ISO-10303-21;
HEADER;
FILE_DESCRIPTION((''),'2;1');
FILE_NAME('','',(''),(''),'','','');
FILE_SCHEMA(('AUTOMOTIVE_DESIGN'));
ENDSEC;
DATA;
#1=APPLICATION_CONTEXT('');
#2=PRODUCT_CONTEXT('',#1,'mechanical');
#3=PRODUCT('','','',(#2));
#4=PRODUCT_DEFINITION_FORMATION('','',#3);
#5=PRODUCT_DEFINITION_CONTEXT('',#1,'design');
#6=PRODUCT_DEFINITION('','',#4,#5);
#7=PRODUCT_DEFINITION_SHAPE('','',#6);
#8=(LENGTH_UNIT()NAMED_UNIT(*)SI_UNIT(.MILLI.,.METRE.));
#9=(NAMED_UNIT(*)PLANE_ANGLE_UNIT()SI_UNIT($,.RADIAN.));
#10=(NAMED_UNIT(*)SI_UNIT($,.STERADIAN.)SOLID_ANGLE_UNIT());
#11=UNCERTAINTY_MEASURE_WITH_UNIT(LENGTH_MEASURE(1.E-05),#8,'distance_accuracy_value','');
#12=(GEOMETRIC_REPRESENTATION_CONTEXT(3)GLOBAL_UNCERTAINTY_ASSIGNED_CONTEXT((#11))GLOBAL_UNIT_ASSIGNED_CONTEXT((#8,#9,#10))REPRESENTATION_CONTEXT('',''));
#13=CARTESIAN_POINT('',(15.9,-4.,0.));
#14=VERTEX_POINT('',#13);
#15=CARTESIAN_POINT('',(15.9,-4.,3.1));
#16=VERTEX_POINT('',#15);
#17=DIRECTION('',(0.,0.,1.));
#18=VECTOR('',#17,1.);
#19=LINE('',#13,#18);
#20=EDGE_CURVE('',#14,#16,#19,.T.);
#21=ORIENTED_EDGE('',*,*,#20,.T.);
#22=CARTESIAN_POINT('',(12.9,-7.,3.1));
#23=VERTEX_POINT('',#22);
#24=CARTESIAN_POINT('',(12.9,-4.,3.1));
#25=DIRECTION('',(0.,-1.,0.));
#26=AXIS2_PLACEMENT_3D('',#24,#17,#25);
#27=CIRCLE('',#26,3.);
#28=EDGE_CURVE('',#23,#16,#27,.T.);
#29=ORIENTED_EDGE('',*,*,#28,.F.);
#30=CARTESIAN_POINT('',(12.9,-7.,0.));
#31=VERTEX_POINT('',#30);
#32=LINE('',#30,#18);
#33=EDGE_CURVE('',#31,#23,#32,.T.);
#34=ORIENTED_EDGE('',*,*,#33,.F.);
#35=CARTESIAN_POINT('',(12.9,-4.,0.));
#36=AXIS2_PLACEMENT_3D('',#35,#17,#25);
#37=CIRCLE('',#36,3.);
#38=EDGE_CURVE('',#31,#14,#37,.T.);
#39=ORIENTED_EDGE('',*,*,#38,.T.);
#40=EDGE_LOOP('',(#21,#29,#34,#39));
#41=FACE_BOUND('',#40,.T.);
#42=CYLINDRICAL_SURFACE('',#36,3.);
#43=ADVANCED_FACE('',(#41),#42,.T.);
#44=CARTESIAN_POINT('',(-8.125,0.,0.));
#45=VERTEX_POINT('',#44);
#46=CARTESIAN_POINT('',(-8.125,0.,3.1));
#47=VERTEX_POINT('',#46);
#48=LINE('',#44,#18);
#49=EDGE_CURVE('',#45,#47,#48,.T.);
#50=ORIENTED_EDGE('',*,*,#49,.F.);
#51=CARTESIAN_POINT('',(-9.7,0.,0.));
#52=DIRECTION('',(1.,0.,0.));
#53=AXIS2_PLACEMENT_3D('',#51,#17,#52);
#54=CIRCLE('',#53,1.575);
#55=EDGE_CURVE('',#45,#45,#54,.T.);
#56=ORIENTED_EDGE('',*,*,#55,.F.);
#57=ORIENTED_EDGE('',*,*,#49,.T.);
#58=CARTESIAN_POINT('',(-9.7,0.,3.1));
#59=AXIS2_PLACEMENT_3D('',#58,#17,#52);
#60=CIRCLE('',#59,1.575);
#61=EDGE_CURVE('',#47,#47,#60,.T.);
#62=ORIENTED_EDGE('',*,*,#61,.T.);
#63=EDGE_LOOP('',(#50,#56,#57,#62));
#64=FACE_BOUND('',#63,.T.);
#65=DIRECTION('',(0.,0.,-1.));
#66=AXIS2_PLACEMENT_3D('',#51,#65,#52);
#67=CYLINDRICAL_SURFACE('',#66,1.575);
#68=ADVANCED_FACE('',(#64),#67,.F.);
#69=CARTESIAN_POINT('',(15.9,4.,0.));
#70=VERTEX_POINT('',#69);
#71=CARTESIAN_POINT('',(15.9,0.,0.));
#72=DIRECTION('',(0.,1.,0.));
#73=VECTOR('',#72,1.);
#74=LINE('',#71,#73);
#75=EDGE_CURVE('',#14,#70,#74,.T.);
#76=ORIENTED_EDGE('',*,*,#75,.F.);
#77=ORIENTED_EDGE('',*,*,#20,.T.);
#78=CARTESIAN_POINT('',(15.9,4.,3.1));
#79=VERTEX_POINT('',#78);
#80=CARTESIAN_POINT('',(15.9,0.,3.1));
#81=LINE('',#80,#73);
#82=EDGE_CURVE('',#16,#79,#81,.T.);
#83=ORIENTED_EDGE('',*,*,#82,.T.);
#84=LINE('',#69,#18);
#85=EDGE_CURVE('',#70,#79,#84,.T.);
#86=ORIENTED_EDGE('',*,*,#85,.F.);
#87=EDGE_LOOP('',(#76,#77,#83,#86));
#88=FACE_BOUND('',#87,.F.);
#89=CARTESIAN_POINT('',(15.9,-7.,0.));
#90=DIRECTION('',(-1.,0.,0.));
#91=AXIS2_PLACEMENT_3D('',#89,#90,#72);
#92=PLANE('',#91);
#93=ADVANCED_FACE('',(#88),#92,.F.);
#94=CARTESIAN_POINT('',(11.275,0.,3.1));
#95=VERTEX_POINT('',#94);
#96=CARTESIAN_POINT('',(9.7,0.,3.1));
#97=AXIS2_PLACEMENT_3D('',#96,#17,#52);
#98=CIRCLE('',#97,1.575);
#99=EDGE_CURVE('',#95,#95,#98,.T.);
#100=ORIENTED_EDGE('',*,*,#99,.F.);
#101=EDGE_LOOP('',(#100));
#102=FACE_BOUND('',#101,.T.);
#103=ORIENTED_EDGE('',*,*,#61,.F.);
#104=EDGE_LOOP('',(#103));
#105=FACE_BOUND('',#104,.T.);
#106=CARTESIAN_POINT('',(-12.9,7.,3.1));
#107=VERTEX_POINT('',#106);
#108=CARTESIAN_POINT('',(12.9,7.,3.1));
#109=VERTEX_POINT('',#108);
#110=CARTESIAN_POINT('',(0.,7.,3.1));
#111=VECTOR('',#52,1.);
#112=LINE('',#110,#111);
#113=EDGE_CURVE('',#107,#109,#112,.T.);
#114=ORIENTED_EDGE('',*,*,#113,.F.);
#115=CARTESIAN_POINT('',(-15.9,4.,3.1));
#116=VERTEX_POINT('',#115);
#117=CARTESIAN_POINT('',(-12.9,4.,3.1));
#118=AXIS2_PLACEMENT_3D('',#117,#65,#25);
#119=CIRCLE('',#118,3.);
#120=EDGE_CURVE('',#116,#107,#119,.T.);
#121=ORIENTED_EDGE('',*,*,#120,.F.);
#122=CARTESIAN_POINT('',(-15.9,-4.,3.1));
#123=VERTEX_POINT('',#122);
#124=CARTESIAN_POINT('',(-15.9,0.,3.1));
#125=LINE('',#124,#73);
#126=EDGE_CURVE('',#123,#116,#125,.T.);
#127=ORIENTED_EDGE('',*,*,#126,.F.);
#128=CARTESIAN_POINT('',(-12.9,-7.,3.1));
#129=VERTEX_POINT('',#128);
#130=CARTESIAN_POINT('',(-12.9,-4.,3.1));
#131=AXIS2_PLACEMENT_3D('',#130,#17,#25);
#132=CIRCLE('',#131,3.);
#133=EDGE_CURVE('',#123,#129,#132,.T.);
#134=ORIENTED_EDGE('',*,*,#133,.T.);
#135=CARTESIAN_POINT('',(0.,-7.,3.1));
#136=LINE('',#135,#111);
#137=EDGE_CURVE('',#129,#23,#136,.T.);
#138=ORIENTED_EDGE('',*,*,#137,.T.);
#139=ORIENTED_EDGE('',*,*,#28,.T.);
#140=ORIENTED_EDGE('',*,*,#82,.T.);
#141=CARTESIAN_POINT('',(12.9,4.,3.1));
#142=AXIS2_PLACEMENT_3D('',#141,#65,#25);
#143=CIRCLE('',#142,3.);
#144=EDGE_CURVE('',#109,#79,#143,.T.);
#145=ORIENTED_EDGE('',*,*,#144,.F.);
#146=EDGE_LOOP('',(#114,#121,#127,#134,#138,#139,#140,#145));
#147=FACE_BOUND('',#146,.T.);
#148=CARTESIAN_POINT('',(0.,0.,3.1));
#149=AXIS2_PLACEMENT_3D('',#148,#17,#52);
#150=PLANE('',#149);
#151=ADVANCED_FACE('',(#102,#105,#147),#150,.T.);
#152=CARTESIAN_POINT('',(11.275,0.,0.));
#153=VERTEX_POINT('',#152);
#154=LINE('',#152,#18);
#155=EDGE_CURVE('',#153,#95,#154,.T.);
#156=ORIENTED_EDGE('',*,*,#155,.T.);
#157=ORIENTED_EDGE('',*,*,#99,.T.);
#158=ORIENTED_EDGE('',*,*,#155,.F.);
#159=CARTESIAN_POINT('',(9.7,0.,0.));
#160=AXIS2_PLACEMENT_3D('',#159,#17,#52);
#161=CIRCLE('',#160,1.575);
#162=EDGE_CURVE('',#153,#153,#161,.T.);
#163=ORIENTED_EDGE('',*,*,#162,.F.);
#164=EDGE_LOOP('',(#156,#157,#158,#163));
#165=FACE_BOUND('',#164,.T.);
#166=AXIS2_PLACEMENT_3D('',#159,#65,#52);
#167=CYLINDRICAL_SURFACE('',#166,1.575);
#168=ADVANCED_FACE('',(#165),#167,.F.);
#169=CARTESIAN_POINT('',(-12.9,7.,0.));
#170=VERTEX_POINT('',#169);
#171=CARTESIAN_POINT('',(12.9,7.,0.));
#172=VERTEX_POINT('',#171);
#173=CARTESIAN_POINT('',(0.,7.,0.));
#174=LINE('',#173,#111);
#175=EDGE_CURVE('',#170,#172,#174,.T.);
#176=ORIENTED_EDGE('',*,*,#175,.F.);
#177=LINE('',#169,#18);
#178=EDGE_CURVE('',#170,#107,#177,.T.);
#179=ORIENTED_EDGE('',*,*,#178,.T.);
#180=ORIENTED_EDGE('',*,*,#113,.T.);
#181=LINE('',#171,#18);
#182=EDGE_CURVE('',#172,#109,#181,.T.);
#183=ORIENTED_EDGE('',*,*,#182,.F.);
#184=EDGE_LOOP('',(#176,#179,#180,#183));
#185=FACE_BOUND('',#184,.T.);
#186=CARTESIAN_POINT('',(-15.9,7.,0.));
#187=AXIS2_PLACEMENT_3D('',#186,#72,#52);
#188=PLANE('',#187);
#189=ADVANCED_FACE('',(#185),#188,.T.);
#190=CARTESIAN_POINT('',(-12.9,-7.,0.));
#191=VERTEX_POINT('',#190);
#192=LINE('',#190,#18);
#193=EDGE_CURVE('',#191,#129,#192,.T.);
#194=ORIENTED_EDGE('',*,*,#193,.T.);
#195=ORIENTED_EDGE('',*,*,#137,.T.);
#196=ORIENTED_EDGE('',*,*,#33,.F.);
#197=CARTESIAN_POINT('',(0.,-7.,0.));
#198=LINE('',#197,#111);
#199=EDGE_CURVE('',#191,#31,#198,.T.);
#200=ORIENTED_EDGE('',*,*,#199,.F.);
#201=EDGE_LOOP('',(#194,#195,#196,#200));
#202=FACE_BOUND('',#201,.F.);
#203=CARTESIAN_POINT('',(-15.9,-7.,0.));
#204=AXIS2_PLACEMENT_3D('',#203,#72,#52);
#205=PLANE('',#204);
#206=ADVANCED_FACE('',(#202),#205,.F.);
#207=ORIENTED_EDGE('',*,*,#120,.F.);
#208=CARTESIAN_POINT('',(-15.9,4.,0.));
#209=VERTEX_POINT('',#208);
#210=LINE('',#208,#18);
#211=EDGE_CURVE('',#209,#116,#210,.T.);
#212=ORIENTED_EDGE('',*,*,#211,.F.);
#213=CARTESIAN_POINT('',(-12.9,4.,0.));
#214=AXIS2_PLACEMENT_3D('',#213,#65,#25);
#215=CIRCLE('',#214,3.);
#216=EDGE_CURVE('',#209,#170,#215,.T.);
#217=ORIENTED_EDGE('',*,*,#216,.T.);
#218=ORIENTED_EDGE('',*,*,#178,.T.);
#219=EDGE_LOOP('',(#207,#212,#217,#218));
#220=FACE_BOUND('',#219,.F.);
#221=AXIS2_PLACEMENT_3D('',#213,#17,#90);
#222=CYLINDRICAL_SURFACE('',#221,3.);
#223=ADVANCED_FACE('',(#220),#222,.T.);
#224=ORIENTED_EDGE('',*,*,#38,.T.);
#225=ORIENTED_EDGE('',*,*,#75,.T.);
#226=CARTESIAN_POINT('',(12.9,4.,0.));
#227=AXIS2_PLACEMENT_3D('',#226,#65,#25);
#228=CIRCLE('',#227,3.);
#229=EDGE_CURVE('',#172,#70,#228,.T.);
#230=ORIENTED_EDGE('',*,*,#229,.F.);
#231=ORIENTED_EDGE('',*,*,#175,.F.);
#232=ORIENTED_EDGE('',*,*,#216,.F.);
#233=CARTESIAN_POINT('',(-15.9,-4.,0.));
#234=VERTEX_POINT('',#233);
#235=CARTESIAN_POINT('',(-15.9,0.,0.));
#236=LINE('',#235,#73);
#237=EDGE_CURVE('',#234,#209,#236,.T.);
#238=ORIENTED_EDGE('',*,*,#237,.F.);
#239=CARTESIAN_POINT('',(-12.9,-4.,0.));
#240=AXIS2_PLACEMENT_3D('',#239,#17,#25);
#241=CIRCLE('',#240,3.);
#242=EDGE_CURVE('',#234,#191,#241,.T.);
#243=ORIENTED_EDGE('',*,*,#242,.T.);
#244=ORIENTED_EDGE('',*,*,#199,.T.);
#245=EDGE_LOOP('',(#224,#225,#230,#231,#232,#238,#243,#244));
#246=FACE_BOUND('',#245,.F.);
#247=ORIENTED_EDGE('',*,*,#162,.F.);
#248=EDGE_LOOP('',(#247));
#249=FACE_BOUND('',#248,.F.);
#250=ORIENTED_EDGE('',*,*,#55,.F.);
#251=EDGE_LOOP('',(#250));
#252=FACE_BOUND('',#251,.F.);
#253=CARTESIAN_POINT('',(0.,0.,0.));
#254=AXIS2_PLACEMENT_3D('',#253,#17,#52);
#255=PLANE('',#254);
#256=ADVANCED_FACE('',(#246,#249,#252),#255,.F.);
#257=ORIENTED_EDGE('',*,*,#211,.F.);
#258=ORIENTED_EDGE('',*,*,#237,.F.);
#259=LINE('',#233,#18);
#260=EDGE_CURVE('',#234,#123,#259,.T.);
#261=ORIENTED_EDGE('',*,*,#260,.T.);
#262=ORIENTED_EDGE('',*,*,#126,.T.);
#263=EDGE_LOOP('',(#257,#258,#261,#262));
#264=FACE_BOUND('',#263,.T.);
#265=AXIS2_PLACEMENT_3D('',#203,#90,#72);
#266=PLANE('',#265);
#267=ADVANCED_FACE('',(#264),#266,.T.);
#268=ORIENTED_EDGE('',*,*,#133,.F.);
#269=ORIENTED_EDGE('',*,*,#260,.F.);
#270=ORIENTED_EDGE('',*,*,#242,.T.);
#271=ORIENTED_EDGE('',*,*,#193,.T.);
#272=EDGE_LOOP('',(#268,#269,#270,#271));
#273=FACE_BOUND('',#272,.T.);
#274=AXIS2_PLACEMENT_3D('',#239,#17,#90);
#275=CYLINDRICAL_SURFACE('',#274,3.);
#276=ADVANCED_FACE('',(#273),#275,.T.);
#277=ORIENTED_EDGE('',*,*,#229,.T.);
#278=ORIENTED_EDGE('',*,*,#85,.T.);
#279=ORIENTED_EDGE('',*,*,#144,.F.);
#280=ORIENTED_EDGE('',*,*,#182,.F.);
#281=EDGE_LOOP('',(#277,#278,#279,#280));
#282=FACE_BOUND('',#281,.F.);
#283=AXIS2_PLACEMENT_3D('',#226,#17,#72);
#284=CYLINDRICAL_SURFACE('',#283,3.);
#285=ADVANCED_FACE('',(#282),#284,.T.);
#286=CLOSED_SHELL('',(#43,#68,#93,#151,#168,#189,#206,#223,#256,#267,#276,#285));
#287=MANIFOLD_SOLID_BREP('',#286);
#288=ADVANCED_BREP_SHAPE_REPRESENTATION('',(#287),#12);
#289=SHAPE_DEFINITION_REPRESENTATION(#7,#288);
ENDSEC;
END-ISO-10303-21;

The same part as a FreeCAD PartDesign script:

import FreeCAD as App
import Part
import Sketcher

V = App.Vector


def edges_at(feature, points):
    """Names of the edges that pass closest to the given points."""
    edges = feature.Shape.Edges
    near = lambda p: min(range(len(edges)), key=lambda i: edges[i].distToShape(Part.Vertex(*p))[0])
    return sorted({f"Edge{near(p) + 1}" for p in points})

doc = App.newDocument("Part")
body = doc.addObject("PartDesign::Body", "Body")

# Sketch on XY plane
sketch1 = body.newObject("Sketcher::SketchObject", "Sketch")
sketch1.AttachmentSupport = (doc.getObject("XY_Plane"), [""])
sketch1.MapMode = "FlatFace"
sketch1.addGeometry(Part.LineSegment(V(-15.9, 7, 0), V(-15.9, -7, 0)), False)
sketch1.addGeometry(Part.LineSegment(V(-15.9, -7, 0), V(15.9, -7, 0)), False)
sketch1.addGeometry(Part.LineSegment(V(15.9, -7, 0), V(15.9, 7, 0)), False)
sketch1.addGeometry(Part.LineSegment(V(15.9, 7, 0), V(-15.9, 7, 0)), False)
sketch1.addGeometry(Part.Circle(V(-9.7, 0, 0), V(0, 0, 1), 1.6), False)
sketch1.addGeometry(Part.Circle(V(9.7, 0, 0), V(0, 0, 1), 1.6), False)
sketch1.addConstraint(Sketcher.Constraint("Coincident", 0, 2, 1, 1))
sketch1.addConstraint(Sketcher.Constraint("Coincident", 1, 2, 2, 1))
sketch1.addConstraint(Sketcher.Constraint("Coincident", 2, 2, 3, 1))
sketch1.addConstraint(Sketcher.Constraint("Coincident", 3, 2, 0, 1))
sketch1.addConstraint(Sketcher.Constraint("Vertical", 0))
sketch1.addConstraint(Sketcher.Constraint("Horizontal", 1))
sketch1.addConstraint(Sketcher.Constraint("Vertical", 2))
sketch1.addConstraint(Sketcher.Constraint("Horizontal", 3))
sketch1.addConstraint(Sketcher.Constraint("Equal", 4, 5))
sketch1.addConstraint(Sketcher.Constraint("Symmetric", 4, 3, 5, 3, -1, 1))
sketch1.addConstraint(Sketcher.Constraint("Symmetric", 0, 2, 2, 2, -1, 1))
sketch1.addConstraint(Sketcher.Constraint("PointOnObject", 4, 3, -1))
sketch1.addConstraint(Sketcher.Constraint("Diameter", 4, 3.15))
sketch1.addConstraint(Sketcher.Constraint("DistanceY", 0, 2, 0, 1, 14.0))
sketch1.addConstraint(Sketcher.Constraint("DistanceX", 1, 1, 1, 2, 31.8))
sketch1.addConstraint(Sketcher.Constraint("DistanceX", 4, 3, -1, 1, 9.7))
pad1 = body.newObject("PartDesign::Pad", "Pad")
pad1.Profile = sketch1
pad1.Length = 3.1
doc.recompute()

fillet = body.newObject("PartDesign::Fillet", "Fillet")
fillet.Base = (pad1, edges_at(pad1, [
    (-15.9, -7, 1.55),
    (15.9, -7, 1.55),
    (-15.9, 7, 1.55),
    (15.9, 7, 1.55),
]))
fillet.Radius = 3

doc.recompute()
